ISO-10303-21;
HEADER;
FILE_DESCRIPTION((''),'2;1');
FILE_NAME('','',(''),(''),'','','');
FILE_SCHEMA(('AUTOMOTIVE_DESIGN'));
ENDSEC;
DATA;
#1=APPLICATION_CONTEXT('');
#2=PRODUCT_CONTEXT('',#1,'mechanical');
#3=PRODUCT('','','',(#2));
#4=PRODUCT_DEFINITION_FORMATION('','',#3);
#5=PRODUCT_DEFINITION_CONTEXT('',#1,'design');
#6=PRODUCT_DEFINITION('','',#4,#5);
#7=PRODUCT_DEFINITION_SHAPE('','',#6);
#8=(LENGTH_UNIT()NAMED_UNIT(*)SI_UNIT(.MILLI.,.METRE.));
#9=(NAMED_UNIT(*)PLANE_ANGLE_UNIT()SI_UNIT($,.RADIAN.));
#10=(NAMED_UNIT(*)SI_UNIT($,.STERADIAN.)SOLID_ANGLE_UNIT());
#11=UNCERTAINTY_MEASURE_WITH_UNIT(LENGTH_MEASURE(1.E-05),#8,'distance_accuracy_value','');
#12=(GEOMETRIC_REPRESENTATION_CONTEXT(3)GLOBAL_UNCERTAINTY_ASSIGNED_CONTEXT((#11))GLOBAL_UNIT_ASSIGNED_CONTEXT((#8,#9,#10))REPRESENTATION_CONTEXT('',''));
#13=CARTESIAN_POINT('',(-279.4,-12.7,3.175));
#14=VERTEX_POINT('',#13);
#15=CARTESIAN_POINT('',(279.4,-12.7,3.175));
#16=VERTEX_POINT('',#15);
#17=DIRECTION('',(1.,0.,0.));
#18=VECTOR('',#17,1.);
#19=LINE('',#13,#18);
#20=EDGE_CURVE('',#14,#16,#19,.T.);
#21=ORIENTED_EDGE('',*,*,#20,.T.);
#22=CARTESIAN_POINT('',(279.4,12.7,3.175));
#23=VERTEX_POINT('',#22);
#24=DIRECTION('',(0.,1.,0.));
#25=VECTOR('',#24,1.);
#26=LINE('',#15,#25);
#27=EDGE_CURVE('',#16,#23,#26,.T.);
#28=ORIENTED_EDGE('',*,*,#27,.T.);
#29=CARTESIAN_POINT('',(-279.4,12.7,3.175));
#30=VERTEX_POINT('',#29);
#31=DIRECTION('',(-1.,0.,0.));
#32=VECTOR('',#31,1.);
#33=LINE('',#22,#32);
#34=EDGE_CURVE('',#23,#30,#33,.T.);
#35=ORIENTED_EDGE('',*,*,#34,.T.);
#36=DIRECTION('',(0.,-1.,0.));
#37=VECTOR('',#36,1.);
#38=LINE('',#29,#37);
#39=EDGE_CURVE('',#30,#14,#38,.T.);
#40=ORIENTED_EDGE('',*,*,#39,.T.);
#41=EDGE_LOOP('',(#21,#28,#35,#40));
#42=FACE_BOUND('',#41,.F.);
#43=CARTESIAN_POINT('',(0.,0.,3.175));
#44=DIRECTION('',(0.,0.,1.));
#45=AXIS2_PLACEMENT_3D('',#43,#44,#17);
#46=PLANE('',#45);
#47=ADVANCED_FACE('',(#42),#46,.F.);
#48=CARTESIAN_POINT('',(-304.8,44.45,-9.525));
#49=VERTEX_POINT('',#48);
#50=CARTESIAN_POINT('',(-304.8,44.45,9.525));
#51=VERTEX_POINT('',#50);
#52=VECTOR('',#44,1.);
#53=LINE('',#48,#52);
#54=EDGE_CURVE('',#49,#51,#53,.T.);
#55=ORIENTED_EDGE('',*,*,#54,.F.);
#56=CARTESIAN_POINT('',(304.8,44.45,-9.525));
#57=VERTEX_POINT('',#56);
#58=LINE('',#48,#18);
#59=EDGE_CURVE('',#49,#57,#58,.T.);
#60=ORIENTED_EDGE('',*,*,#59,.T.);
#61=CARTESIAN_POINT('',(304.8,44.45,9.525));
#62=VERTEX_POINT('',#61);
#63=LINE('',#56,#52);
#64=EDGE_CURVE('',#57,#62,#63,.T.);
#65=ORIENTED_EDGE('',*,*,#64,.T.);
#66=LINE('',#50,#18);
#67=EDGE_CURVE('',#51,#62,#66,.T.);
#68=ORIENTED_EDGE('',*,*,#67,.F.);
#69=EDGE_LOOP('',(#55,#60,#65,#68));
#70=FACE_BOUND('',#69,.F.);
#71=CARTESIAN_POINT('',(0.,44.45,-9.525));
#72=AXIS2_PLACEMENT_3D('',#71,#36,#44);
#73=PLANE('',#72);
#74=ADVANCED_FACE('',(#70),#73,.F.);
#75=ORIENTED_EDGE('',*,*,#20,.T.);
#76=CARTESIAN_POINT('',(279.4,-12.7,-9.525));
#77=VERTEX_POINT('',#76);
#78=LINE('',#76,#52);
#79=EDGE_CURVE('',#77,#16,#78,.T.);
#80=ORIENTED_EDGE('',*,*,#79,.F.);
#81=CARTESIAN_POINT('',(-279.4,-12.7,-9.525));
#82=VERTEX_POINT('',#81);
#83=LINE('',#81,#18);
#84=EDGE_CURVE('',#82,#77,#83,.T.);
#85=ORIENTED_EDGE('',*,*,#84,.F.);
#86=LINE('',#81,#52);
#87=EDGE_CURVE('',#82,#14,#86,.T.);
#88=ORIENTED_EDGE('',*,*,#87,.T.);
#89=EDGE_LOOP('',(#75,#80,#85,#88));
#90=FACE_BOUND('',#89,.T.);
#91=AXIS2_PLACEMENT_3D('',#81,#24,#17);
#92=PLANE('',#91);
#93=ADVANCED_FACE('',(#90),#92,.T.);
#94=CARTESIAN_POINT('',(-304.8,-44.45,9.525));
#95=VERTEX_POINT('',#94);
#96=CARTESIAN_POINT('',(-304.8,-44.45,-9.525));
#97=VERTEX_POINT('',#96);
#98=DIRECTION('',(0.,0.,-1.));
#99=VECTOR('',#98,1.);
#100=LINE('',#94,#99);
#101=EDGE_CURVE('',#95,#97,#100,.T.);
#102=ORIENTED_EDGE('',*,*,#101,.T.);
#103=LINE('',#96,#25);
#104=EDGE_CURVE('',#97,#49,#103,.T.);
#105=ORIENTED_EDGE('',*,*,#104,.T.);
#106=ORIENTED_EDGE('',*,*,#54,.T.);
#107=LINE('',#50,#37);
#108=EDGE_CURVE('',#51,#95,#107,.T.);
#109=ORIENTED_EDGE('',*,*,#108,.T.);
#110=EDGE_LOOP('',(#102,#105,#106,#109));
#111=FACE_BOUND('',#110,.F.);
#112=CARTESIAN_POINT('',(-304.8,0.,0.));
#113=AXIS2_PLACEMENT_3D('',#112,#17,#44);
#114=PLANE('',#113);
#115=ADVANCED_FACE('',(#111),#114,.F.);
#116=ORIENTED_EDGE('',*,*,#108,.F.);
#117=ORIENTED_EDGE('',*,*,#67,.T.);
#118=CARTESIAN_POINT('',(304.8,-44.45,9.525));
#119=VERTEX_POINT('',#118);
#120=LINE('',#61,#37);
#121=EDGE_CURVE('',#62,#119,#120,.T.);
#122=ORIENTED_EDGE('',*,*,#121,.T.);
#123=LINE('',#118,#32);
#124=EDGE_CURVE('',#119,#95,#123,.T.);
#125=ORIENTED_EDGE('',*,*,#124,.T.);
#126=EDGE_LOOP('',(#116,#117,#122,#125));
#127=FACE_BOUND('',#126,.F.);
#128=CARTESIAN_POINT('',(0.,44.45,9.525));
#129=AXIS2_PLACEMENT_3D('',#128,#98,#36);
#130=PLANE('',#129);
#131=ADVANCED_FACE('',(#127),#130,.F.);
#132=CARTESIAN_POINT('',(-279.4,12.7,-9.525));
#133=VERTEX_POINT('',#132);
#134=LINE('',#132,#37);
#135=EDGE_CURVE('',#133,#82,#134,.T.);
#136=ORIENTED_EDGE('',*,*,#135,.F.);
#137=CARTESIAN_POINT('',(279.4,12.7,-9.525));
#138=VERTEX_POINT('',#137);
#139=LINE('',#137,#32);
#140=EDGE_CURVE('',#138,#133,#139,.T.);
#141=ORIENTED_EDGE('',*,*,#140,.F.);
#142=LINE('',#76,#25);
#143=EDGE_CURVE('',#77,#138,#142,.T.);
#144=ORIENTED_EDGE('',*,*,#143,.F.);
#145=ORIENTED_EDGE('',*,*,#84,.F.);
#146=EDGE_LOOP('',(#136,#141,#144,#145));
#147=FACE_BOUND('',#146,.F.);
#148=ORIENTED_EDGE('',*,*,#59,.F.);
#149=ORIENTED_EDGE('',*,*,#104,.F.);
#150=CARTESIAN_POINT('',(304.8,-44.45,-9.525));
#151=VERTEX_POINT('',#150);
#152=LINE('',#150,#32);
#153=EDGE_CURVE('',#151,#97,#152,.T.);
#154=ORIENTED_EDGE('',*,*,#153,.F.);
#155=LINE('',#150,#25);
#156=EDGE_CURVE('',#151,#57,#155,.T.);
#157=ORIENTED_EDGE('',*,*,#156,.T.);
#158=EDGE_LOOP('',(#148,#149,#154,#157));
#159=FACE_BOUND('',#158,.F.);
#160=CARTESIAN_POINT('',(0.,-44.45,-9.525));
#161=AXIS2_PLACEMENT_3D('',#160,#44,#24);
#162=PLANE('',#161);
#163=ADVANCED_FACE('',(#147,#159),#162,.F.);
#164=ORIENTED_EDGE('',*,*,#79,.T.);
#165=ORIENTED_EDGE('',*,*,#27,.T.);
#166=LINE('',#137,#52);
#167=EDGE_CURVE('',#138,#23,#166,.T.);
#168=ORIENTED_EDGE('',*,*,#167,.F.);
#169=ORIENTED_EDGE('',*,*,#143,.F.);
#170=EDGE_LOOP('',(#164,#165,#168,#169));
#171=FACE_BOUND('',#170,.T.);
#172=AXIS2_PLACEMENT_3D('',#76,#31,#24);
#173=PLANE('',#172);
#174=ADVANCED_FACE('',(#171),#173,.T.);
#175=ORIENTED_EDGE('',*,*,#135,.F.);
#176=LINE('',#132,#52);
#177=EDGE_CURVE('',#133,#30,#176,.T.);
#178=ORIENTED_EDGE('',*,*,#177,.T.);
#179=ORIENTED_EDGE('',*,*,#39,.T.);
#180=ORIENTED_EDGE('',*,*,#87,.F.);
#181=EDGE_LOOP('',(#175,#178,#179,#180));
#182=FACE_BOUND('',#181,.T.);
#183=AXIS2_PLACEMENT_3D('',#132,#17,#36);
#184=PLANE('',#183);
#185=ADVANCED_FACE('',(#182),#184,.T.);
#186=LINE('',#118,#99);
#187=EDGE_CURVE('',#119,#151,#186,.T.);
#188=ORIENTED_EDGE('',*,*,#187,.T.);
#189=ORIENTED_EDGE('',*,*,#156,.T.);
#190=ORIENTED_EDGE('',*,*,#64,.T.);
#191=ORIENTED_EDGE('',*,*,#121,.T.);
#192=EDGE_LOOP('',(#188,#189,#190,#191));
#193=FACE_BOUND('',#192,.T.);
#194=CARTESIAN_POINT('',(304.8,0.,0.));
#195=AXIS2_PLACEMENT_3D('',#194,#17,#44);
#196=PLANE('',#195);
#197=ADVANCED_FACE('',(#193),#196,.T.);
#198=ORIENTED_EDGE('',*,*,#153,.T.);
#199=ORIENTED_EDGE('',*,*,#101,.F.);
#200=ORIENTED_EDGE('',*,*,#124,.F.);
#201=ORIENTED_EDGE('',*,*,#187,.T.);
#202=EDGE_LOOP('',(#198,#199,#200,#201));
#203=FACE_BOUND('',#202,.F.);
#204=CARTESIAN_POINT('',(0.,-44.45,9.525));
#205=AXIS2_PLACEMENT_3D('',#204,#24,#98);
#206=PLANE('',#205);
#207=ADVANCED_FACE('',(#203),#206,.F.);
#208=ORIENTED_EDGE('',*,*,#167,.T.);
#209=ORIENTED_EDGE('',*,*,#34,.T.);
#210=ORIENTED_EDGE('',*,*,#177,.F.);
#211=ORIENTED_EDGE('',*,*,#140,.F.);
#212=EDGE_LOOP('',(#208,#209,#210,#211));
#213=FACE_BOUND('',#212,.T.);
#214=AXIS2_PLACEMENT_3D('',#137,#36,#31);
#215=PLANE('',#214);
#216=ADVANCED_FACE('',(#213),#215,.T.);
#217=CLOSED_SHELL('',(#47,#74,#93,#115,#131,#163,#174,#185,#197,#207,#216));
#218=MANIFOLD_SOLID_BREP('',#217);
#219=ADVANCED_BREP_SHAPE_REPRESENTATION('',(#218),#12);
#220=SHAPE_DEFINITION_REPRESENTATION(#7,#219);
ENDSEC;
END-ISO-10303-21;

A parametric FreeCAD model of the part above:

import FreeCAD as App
import Part
import Sketcher
Q = App.Units.Quantity


def add_polygon(sketch, points):
    """Adds a closed chain of lines whose ends are joined by coincident constraints."""
    first, n = sketch.GeometryCount, len(points)
    for a, b in zip(points, points[1:] + points[:1]):
        sketch.addGeometry(Part.LineSegment(App.Vector(*a, 0), App.Vector(*b, 0)), False)
    for i in range(n):
        sketch.addConstraint(Sketcher.Constraint("Coincident", first + i, 2, first + (i + 1) % n, 1))

doc = App.newDocument("Part")
body = doc.addObject("PartDesign::Body", "Body")

# Sketch on YZ plane
sketch1 = body.newObject("Sketcher::SketchObject", "Sketch")
sketch1.AttachmentSupport = (doc.getObject("YZ_Plane"), [""])
sketch1.MapMode = "FlatFace"
add_polygon(sketch1, [(-44.45, 9.525), (-44.45, -9.525), (44.45, -9.525), (44.45, 9.525)])  # lines 0-3
sketch1.addConstraint([
    Sketcher.Constraint("Vertical", 0),
    Sketcher.Constraint("Horizontal", 1),
    Sketcher.Constraint("Vertical", 2),
    Sketcher.Constraint("Horizontal", 3),
    Sketcher.Constraint("Symmetric", 0, 2, 2, 2, -1, 1),
    Sketcher.Constraint("DistanceX", 0, 2, -1, 1, Q("1.75 in")),
    Sketcher.Constraint("DistanceY", 0, 2, 0, 1, Q("0.75 in")),
])
pad1 = body.newObject("PartDesign::Pad", "Pad")
pad1.Profile = sketch1
pad1.Length = Q("24 in")
pad1.Midplane = True

# Sketch on XY plane
sketch2 = body.newObject("Sketcher::SketchObject", "Sketch001")
sketch2.AttachmentSupport = (doc.getObject("XY_Plane"), [""])
sketch2.MapMode = "FlatFace"
sketch2.AttachmentOffset = App.Placement(App.Vector(0, 0, -0.375 * 25.4), App.Rotation())
add_polygon(sketch2, [(279.4, -12.7), (-279.4, -12.7), (-279.4, 12.7), (279.4, 12.7)])  # lines 0-3
sketch2.addConstraint([
    Sketcher.Constraint("Horizontal", 0),
    Sketcher.Constraint("Vertical", 1),
    Sketcher.Constraint("Horizontal", 2),
    Sketcher.Constraint("Vertical", 3),
    Sketcher.Constraint("Symmetric", 0, 2, 2, 2, -1, 1),
    Sketcher.Constraint("DistanceX", 0, 2, -1, 1, Q("11 in")),
    Sketcher.Constraint("DistanceY", 1, 1, 1, 2, Q("1 in")),
])
pocket1 = body.newObject("PartDesign::Pocket", "Pocket")
pocket1.Profile = sketch2
pocket1.Length = Q("0.5 in")
pocket1.Reversed = True

doc.recompute()
